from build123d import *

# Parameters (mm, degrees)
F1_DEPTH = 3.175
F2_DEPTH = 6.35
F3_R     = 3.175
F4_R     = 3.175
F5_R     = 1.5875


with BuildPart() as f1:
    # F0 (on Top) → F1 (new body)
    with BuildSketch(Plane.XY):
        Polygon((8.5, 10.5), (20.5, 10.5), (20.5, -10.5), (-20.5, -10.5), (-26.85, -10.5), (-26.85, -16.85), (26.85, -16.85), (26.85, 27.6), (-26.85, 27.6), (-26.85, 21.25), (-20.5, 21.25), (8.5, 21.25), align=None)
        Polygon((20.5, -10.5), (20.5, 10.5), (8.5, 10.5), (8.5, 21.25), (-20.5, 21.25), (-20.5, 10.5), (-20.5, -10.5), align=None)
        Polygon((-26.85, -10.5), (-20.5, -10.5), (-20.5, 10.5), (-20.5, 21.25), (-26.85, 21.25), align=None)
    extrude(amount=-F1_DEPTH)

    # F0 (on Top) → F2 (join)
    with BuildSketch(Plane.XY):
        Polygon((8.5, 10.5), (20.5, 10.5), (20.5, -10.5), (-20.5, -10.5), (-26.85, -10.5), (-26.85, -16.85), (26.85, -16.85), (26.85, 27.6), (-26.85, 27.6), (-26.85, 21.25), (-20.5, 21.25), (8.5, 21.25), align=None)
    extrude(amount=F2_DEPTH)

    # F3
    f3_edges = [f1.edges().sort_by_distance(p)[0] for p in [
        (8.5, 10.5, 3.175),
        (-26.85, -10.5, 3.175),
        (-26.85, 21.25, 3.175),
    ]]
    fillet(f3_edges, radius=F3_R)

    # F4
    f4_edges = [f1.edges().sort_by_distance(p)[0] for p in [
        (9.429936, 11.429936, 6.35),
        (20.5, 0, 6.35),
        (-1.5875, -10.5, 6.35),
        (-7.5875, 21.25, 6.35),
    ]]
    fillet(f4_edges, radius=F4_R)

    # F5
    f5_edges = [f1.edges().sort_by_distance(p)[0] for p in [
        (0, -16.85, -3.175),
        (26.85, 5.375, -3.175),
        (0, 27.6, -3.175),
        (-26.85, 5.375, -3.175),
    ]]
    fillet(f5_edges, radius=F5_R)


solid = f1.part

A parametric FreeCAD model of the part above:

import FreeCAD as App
import Part
import Sketcher
from FreeCAD import Vector
Q = App.Units.Quantity


def edges_at(feature, points):
    """Names of the edges that pass closest to the given points."""
    edges = feature.Shape.Edges
    near = lambda p: min(range(len(edges)), key=lambda i: edges[i].distToShape(Part.Vertex(*p))[0])
    return sorted({f"Edge{near(p) + 1}" for p in points})


def add_polygon(sketch, points):
    """Adds a closed chain of lines whose ends are joined by coincident constraints."""
    first, n = sketch.GeometryCount, len(points)
    for a, b in zip(points, points[1:] + points[:1]):
        sketch.addGeometry(Part.LineSegment(App.Vector(*a, 0), App.Vector(*b, 0)), False)
    for i in range(n):
        sketch.addConstraint(Sketcher.Constraint("Coincident", first + i, 2, first + (i + 1) % n, 1))

doc = App.newDocument("Part")
body = doc.addObject("PartDesign::Body", "Body")

# Sketch on XY plane
sketch1 = body.newObject("Sketcher::SketchObject", "Sketch")
sketch1.AttachmentSupport = (doc.getObject("XY_Plane"), [""])
sketch1.MapMode = "FlatFace"
add_polygon(sketch1, [(-26.85, -16.85), (26.85, -16.85), (26.85, 27.6), (-26.85, 27.6)])  # lines 0-3
sketch1.addConstraint([
    Sketcher.Constraint("Horizontal", 0),
    Sketcher.Constraint("Vertical", 1),
    Sketcher.Constraint("Horizontal", 2),
    Sketcher.Constraint("Vertical", 3),
    Sketcher.Constraint("DistanceY", 1, 1, 1, 2, Q("1.75 in")),
    Sketcher.Constraint("DistanceX", 0, 1, 0, 2, Q("53.7 mm")),
    Sketcher.Constraint("DistanceX", -1, 1, 0, 2, Q("26.85 mm")),
    Sketcher.Constraint("DistanceY", 0, 2, -1, 1, Q("16.85 mm")),
])
pad1 = body.newObject("PartDesign::Pad", "Pad")
pad1.Profile = sketch1
pad1.Length = Q("0.125 in")
pad1.Reversed = True

# Sketch on XY plane
sketch2 = body.newObject("Sketcher::SketchObject", "Sketch001")
sketch2.AttachmentSupport = (doc.getObject("XY_Plane"), [""])
sketch2.MapMode = "FlatFace"
add_polygon(sketch2, [(8.5, 10.5), (20.5, 10.5), (20.5, -10.5), (-26.85, -10.5), (-26.85, -16.85), (26.85, -16.85), (26.85, 27.6), (-26.85, 27.6), (-26.85, 21.25), (8.5, 21.25)])  # lines 0-9
sketch2.addConstraint([
    Sketcher.Constraint("Horizontal", 0),
    Sketcher.Constraint("Vertical", 1),
    Sketcher.Constraint("Horizontal", 2),
    Sketcher.Constraint("Vertical", 3),
    Sketcher.Constraint("Horizontal", 4),
    Sketcher.Constraint("Vertical", 5),
    Sketcher.Constraint("Horizontal", 6),
    Sketcher.Constraint("Vertical", 7),
    Sketcher.Constraint("Horizontal", 8),
    Sketcher.Constraint("Vertical", 9),
    Sketcher.Constraint("Vertical", 3, 2, 6, 2),
    Sketcher.Constraint("Equal", 3, 7),
    Sketcher.Constraint("DistanceY", 3, 2, 3, 1, Q("0.25 in")),
    Sketcher.Constraint("DistanceY", 5, 1, 5, 2, Q("1.75 in")),
    Sketcher.Constraint("DistanceX", 1, 2, 4, 2, Q("0.25 in")),
    Sketcher.Constraint("DistanceX", 0, 1, 0, 2, Q("12 mm")),
    Sketcher.Constraint("DistanceX", 2, 2, 2, 1, Q("47.35 mm")),
    Sketcher.Constraint("DistanceY", 1, 2, 1, 1, Q("21 mm")),
    Sketcher.Constraint("DistanceX", -1, 1, 0, 2, Q("20.5 mm")),
    Sketcher.Constraint("DistanceY", -1, 1, 0, 2, Q("10.5 mm")),
])
pad2 = body.newObject("PartDesign::Pad", "Pad001")
pad2.Profile = sketch2
pad2.Length = Q("0.25 in")
doc.recompute()

fillet = body.newObject("PartDesign::Fillet", "Fillet")
fillet.Base = (pad2, edges_at(pad2, [(8.5, 10.5, 3.175), (-26.85, -10.5, 3.175), (-26.85, 21.25, 3.175)]))
fillet.Radius = Q("0.125 in")
doc.recompute()

fillet2 = body.newObject("PartDesign::Fillet", "Fillet001")
fillet2.Base = (fillet, edges_at(fillet, [
    (9.43, 11.43, 6.35),
    (20.5, 0, 6.35),
    (-1.587, -10.5, 6.35),
    (-7.588, 21.25, 6.35),
]))
fillet2.Radius = Q("0.125 in")
doc.recompute()

fillet3 = body.newObject("PartDesign::Fillet", "Fillet002")
fillet3.Base = (fillet2, edges_at(fillet2, [
    (0, -16.85, -3.175),
    (26.85, 5.375, -3.175),
    (0, 27.6, -3.175),
    (-26.85, 5.375, -3.175),
]))
fillet3.Radius = Q("0.0625 in")

doc.recompute()
